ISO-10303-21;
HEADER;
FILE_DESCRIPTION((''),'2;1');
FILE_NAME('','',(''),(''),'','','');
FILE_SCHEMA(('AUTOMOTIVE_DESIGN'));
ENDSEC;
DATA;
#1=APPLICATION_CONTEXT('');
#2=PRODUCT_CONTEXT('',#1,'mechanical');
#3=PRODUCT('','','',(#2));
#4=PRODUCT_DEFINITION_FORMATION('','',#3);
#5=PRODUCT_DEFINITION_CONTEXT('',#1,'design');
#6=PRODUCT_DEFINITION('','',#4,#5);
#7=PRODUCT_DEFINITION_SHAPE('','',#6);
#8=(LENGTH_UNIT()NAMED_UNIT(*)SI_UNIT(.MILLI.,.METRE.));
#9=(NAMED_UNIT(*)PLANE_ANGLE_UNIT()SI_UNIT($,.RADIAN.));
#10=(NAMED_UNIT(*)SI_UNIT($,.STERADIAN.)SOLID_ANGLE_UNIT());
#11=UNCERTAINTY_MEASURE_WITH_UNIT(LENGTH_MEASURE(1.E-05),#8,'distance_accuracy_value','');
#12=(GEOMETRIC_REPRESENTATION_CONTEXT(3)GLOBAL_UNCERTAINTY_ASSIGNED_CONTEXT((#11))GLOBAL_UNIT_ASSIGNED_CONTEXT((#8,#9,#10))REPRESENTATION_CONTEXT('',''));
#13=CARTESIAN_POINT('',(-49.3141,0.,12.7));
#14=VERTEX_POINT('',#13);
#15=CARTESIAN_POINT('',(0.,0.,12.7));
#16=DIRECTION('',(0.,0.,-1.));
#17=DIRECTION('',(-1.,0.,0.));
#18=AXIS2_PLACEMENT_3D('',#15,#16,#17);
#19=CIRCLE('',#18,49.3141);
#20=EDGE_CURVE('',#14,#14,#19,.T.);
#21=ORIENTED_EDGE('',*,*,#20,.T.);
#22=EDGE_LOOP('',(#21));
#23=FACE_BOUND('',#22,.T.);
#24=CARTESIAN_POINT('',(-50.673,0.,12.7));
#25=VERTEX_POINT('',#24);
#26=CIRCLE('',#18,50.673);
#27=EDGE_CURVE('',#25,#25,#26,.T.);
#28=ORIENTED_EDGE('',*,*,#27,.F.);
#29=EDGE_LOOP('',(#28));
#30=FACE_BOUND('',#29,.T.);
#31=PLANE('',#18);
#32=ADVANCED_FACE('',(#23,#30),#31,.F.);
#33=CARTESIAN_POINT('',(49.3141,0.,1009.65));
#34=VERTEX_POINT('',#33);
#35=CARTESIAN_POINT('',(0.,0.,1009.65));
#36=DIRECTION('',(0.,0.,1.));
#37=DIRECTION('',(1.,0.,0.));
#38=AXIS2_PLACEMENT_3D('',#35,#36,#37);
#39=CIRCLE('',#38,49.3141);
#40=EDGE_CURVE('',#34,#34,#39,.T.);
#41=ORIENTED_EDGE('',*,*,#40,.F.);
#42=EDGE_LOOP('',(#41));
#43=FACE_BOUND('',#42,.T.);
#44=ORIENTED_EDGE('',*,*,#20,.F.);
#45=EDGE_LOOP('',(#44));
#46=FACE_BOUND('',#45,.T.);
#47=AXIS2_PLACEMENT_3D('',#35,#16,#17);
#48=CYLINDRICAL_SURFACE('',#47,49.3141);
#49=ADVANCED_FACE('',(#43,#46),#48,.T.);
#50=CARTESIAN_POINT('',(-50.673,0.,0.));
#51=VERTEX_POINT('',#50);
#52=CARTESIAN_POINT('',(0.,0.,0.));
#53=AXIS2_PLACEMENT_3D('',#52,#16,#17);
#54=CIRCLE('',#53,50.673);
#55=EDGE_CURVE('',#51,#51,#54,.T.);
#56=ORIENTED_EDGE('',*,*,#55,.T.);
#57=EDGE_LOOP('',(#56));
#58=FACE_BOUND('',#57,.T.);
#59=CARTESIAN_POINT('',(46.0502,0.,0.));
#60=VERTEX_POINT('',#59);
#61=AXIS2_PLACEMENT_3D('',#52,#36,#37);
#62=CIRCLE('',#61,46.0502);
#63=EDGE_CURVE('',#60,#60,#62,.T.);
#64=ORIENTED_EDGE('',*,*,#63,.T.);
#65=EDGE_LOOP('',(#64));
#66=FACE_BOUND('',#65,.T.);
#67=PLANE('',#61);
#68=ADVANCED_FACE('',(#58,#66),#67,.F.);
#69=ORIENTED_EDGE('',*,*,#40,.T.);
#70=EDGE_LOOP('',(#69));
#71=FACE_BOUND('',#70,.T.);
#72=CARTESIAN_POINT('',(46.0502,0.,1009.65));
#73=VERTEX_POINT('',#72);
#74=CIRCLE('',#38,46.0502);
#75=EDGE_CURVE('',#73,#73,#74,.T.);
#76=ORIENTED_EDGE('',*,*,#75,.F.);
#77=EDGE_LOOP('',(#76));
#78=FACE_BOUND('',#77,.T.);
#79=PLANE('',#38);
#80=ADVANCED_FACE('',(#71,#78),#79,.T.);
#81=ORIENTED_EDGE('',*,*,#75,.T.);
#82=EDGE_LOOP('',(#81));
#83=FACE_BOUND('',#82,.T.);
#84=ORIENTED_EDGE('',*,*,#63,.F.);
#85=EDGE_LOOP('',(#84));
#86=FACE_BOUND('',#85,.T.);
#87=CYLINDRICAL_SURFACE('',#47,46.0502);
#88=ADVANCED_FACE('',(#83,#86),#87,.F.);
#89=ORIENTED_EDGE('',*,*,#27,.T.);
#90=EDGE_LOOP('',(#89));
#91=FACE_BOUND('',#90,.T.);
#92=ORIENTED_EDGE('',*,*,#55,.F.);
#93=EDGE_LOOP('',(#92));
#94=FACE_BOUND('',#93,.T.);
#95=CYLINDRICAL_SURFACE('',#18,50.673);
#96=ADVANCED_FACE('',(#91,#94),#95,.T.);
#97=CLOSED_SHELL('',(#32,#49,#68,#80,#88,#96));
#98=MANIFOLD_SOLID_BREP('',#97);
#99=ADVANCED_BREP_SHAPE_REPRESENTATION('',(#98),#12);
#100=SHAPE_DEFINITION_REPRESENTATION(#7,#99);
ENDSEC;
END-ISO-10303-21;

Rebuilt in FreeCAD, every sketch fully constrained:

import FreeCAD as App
import Part
import Sketcher
from FreeCAD import Vector
Q = App.Units.Quantity

doc = App.newDocument("Part")
body = doc.addObject("PartDesign::Body", "Body")

# Sketch on XY plane
sketch1 = body.newObject("Sketcher::SketchObject", "Sketch")
sketch1.AttachmentSupport = (doc.getObject("XY_Plane"), [""])
sketch1.MapMode = "FlatFace"
sketch1.addGeometry(Part.Circle(Vector(0, 0, 0), Vector(0, 0, 1), 49), False)
sketch1.addGeometry(Part.Circle(Vector(0, 0, 0), Vector(0, 0, 1), 46), False)
sketch1.addConstraint(Sketcher.Constraint("Coincident", 0, 3, -1, 1))
sketch1.addConstraint(Sketcher.Constraint("Coincident", 1, 3, -1, 1))
sketch1.addConstraint(Sketcher.Constraint("Diameter", 0, Q("3.883 in")))
sketch1.addConstraint(Sketcher.Constraint("Diameter", 1, Q("3.626 in")))
pad1 = body.newObject("PartDesign::Pad", "Pad")
pad1.Profile = sketch1
pad1.Length = Q("39.75 in")

# Sketch on XY plane
sketch2 = body.newObject("Sketcher::SketchObject", "Sketch001")
sketch2.AttachmentSupport = (doc.getObject("XY_Plane"), [""])
sketch2.MapMode = "FlatFace"
sketch2.addGeometry(Part.Circle(Vector(0, 0, 0), Vector(0, 0, 1), 51), False)
sketch2.addGeometry(Part.Circle(Vector(0, 0, 0), Vector(0, 0, 1), 49), False)
sketch2.addConstraint(Sketcher.Constraint("Coincident", 0, 3, -1, 1))
sketch2.addConstraint(Sketcher.Constraint("Coincident", 1, 3, -1, 1))
sketch2.addConstraint(Sketcher.Constraint("Diameter", 0, Q("3.99 in")))
sketch2.addConstraint(Sketcher.Constraint("Diameter", 1, Q("3.883 in")))
pad2 = body.newObject("PartDesign::Pad", "Pad001")
pad2.Profile = sketch2
pad2.Length = Q("0.5 in")

doc.recompute()
